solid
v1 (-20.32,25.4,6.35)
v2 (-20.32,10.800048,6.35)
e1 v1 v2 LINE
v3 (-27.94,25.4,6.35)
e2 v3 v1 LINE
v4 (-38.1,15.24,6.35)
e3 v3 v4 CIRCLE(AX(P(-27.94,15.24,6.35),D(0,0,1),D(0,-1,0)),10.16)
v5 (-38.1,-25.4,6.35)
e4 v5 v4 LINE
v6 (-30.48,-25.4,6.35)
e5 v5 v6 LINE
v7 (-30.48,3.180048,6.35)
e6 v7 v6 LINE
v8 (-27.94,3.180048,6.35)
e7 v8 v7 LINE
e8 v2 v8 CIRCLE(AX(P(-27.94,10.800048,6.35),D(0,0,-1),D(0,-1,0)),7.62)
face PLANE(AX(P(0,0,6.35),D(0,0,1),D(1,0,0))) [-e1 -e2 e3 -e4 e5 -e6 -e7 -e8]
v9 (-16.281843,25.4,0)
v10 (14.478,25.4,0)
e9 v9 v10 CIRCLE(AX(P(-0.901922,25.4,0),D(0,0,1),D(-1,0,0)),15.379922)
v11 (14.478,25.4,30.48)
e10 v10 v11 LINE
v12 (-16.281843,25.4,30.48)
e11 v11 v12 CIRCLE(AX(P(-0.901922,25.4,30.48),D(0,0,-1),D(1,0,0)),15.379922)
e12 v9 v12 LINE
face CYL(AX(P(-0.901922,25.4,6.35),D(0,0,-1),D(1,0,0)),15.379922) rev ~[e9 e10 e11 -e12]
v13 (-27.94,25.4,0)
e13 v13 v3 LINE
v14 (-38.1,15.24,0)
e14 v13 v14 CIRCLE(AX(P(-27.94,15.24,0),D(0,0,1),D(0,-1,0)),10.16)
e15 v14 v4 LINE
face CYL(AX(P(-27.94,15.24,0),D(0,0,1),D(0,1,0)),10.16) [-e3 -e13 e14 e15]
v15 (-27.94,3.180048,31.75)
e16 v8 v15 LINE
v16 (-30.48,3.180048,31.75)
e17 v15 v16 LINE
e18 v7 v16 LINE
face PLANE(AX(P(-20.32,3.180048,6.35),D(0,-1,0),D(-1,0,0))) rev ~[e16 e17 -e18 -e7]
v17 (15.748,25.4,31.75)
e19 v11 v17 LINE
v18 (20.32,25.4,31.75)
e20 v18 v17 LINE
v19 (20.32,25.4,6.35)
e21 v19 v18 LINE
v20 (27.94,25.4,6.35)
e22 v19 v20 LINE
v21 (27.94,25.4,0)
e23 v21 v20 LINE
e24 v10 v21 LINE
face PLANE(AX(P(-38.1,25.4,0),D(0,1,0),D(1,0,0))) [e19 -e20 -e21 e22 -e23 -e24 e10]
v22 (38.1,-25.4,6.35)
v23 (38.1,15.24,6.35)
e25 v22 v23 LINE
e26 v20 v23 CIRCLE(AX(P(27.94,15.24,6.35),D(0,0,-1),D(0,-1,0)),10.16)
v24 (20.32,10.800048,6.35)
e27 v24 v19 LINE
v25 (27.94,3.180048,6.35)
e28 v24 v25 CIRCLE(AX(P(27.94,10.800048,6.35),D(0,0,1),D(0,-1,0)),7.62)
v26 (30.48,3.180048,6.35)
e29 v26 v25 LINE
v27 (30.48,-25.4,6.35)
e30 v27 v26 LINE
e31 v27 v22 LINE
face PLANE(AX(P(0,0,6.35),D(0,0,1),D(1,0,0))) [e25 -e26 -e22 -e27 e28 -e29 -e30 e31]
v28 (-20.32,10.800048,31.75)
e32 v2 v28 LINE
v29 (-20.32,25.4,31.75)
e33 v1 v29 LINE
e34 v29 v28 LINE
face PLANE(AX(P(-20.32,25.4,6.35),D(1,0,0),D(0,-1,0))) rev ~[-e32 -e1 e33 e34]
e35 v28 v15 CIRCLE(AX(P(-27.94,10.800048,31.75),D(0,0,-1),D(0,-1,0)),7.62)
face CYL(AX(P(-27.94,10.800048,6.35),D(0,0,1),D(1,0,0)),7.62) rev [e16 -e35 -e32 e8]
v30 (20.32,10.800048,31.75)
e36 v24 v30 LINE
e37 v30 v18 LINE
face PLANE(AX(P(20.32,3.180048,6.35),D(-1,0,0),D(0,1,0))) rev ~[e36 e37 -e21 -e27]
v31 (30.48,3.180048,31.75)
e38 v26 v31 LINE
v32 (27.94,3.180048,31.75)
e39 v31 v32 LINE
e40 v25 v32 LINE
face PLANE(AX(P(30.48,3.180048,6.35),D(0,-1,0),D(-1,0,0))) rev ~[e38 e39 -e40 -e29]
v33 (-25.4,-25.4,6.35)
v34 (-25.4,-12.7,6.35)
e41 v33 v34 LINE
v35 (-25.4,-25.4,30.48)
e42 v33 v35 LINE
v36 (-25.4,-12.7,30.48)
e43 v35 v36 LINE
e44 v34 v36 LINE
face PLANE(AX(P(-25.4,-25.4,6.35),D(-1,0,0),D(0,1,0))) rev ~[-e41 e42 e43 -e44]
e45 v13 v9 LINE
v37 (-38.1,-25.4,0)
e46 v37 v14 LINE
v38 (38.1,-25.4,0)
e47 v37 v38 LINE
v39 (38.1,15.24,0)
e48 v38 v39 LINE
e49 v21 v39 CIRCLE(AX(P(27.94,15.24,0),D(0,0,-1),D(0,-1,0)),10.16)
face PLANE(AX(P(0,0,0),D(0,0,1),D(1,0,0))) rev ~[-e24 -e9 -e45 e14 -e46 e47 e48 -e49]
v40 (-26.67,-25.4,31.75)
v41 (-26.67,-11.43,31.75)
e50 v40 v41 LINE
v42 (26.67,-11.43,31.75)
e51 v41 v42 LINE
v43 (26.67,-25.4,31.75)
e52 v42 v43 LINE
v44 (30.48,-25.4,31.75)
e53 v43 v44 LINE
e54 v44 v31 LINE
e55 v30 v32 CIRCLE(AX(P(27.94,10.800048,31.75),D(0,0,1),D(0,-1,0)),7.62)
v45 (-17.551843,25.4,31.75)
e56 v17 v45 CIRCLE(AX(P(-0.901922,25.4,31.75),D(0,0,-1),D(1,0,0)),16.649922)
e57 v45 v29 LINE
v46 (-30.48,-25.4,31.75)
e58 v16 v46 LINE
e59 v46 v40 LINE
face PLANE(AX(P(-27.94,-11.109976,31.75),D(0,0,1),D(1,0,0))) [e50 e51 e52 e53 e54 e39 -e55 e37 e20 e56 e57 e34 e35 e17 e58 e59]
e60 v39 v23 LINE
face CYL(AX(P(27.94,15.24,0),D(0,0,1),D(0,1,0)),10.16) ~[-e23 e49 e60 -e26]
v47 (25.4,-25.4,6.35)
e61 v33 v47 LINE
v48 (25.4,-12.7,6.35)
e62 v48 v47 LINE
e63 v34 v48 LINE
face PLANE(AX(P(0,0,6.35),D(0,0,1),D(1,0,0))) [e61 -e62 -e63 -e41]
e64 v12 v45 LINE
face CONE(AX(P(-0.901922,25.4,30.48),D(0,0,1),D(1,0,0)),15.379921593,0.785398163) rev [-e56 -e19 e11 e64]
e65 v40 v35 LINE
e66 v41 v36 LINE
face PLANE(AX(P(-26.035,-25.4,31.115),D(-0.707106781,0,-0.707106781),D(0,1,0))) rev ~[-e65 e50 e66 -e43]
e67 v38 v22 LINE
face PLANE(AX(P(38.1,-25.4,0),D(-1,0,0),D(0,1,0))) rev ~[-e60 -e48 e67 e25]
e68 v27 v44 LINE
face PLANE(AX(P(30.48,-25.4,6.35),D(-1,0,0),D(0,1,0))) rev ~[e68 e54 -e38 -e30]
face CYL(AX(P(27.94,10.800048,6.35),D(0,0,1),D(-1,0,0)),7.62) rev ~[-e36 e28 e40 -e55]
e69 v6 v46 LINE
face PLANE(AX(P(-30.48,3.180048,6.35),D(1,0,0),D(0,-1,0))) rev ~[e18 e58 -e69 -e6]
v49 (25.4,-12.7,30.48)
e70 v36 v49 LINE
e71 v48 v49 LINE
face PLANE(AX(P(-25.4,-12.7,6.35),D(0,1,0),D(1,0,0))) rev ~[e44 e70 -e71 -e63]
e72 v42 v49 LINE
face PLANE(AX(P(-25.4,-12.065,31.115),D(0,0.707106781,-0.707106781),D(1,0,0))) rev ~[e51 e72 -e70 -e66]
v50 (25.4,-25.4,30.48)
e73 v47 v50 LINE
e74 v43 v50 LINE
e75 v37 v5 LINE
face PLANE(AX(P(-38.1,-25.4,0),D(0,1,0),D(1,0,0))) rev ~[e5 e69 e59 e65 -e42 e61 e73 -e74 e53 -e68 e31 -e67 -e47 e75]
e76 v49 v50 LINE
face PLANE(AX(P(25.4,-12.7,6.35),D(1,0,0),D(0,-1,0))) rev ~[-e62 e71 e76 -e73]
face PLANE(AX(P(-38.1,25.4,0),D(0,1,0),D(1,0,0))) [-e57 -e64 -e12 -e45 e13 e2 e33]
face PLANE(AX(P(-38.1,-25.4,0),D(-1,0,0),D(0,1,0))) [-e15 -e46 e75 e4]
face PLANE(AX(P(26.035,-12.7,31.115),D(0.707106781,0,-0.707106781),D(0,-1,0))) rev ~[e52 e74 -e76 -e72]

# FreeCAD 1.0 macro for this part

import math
import FreeCAD as App
import Part
import Sketcher
Q = App.Units.Quantity


def edges_at(feature, points):
    """Names of the edges that pass closest to the given points."""
    edges = feature.Shape.Edges
    near = lambda p: min(range(len(edges)), key=lambda i: edges[i].distToShape(Part.Vertex(*p))[0])
    return sorted({f"Edge{near(p) + 1}" for p in points})

doc = App.newDocument("Part")
body = doc.addObject("PartDesign::Body", "Body")

sketch1 = doc.addObject("Sketcher::SketchObject", "Sketch")
body.addObject(sketch1)
sketch1.AttachmentSupport = (doc.XY_Plane, [""])
sketch1.MapMode = "FlatFace"
sketch1.addGeometry([
    Part.LineSegment(App.Vector(-38, 25, 0), App.Vector(-38, -25, 0)),
    Part.LineSegment(App.Vector(-38, -25, 0), App.Vector(38, -25, 0)),
    Part.LineSegment(App.Vector(38, -25, 0), App.Vector(38, 25, 0)),
    Part.LineSegment(App.Vector(38, 25, 0), App.Vector(-38, 25, 0)),
], False)
sketch1.addConstraint([
    Sketcher.Constraint("Coincident", 0, 2, 1, 1),
    Sketcher.Constraint("Coincident", 1, 2, 2, 1),
    Sketcher.Constraint("Coincident", 2, 2, 3, 1),
    Sketcher.Constraint("Coincident", 3, 2, 0, 1),
    Sketcher.Constraint("Vertical", 0),
    Sketcher.Constraint("Horizontal", 1),
    Sketcher.Constraint("Vertical", 2),
    Sketcher.Constraint("Horizontal", 3),
    Sketcher.Constraint("Symmetric", 0, 2, 2, 2, -1, 1),
    Sketcher.Constraint("DistanceX", 1, 1, 1, 2, Q("3 in")),
    Sketcher.Constraint("DistanceY", 0, 2, 0, 1, Q("2 in")),
])
pad1 = doc.addObject("PartDesign::Pad", "Pad")
body.addObject(pad1)
pad1.Profile = sketch1
pad1.Length = Q("0.25 in")

sketch2 = doc.addObject("Sketcher::SketchObject", "Sketch001")
body.addObject(sketch2)
sketch2.AttachmentSupport = (doc.XY_Plane, [""])
sketch2.MapMode = "FlatFace"
sketch2.AttachmentOffset = App.Placement(App.Vector(0, 0, 0.25 * 25.4), App.Rotation())
sketch2.addGeometry([
    Part.LineSegment(App.Vector(-25.4, -25.4, 0), App.Vector(-25.4, -12.7, 0)),
    Part.LineSegment(App.Vector(-25.4, -12.7, 0), App.Vector(25.4, -12.7, 0)),
    Part.LineSegment(App.Vector(25.4, -12.7, 0), App.Vector(25.4, -25.4, 0)),
    Part.LineSegment(App.Vector(25.4, -25.4, 0), App.Vector(30.5, -25.4, 0)),
    Part.LineSegment(App.Vector(30.5, -25.4, 0), App.Vector(30.5, 3.2, 0)),
    Part.LineSegment(App.Vector(30.5, 3.2, 0), App.Vector(20.3, 3.2, 0)),
    Part.LineSegment(App.Vector(20.3, 3.2, 0), App.Vector(20.3, 25.4, 0)),
    Part.LineSegment(App.Vector(20.3, 25.4, 0), App.Vector(14.5, 25.4, 0)),
    Part.ArcOfCircle(Part.Circle(App.Vector(-0.9, 25.4, 0), App.Vector(0, 0, 1), 15.4), math.radians(180), math.radians(360)),
    Part.LineSegment(App.Vector(-16.3, 25.4, 0), App.Vector(-20.3, 25.4, 0)),
    Part.LineSegment(App.Vector(-20.3, 25.4, 0), App.Vector(-20.3, 3.2, 0)),
    Part.LineSegment(App.Vector(-20.3, 3.2, 0), App.Vector(-30.5, 3.2, 0)),
    Part.LineSegment(App.Vector(-30.5, 3.2, 0), App.Vector(-30.5, -25.4, 0)),
    Part.LineSegment(App.Vector(-30.5, -25.4, 0), App.Vector(-25.4, -25.4, 0)),
], False)
sketch2.addConstraint([
    Sketcher.Constraint("Coincident", 0, 2, 1, 1),
    Sketcher.Constraint("Coincident", 1, 2, 2, 1),
    Sketcher.Constraint("Coincident", 2, 2, 3, 1),
    Sketcher.Constraint("Coincident", 3, 2, 4, 1),
    Sketcher.Constraint("Coincident", 4, 2, 5, 1),
    Sketcher.Constraint("Coincident", 5, 2, 6, 1),
    Sketcher.Constraint("Coincident", 6, 2, 7, 1),
    Sketcher.Constraint("Coincident", 7, 2, 8, 2),
    Sketcher.Constraint("Coincident", 8, 1, 9, 1),
    Sketcher.Constraint("Coincident", 9, 2, 10, 1),
    Sketcher.Constraint("Coincident", 10, 2, 11, 1),
    Sketcher.Constraint("Coincident", 11, 2, 12, 1),
    Sketcher.Constraint("Coincident", 12, 2, 13, 1),
    Sketcher.Constraint("Coincident", 13, 2, 0, 1),
    Sketcher.Constraint("Vertical", 0),
    Sketcher.Constraint("Horizontal", 1),
    Sketcher.Constraint("Vertical", 2),
    Sketcher.Constraint("Horizontal", 3),
    Sketcher.Constraint("Vertical", 4),
    Sketcher.Constraint("Horizontal", 5),
    Sketcher.Constraint("Vertical", 6),
    Sketcher.Constraint("Horizontal", 7),
    Sketcher.Constraint("Horizontal", 9),
    Sketcher.Constraint("Vertical", 10),
    Sketcher.Constraint("Horizontal", 11),
    Sketcher.Constraint("Vertical", 12),
    Sketcher.Constraint("Horizontal", 13),
    Sketcher.Constraint("Symmetric", 6, 2, 9, 2, -2),
    Sketcher.Constraint("Symmetric", 4, 2, 11, 2, -2),
    Sketcher.Constraint("Symmetric", 2, 2, 13, 2, -2),
    Sketcher.Constraint("Horizontal", 8, 3, 6, 2),
    Sketcher.Constraint("DistanceX", 1, 1, 1, 2, Q("2 in")),
    Sketcher.Constraint("DistanceX", 3, 1, 3, 2, Q("0.2 in")),
    Sketcher.Constraint("DistanceX", 5, 2, 5, 1, Q("0.4 in")),
    Sketcher.Constraint("DistanceY", 0, 1, 0, 2, Q("0.5 in")),
    Sketcher.Constraint("DistanceY", -1, 1, 8, 3, Q("1 in")),
    Sketcher.Constraint("DistanceY", 2, 2, -1, 1, Q("1 in")),
    Sketcher.Constraint("DistanceX", 7, 2, 7, 1, Q("0.23 in")),
    Sketcher.Constraint("Radius", 8, 15.379922),
    Sketcher.Constraint("DistanceY", 4, 1, 4, 2, 28.580048),
])
pad2 = doc.addObject("PartDesign::Pad", "Pad001")
body.addObject(pad2)
pad2.Profile = sketch2
pad2.Length = Q("1 in")

sketch3 = doc.addObject("Sketcher::SketchObject", "Sketch002")
body.addObject(sketch3)
sketch3.AttachmentSupport = (doc.XY_Plane, [""])
sketch3.MapMode = "FlatFace"
sketch3.AttachmentOffset = App.Placement(App.Vector(0, 0, 1.25 * 25.4), App.Rotation())
sketch3.addGeometry([
    Part.LineSegment(App.Vector(14, 25, 0), App.Vector(-16, 25, 0)),
    Part.ArcOfCircle(Part.Circle(App.Vector(-1, 25, 0), App.Vector(0, 0, 1), 15), math.radians(180), math.radians(360)),
], False)
sketch3.addConstraint([
    Sketcher.Constraint("Coincident", 0, 1, 1, 2),
    Sketcher.Constraint("Coincident", 1, 1, 0, 2),
    Sketcher.Constraint("Horizontal", 0),
    Sketcher.Constraint("Horizontal", 1, 3, 0, 1),
    Sketcher.Constraint("DistanceY", -1, 1, 1, 3, Q("1 in")),
    Sketcher.Constraint("DistanceX", -1, 1, 0, 1, Q("0.57 in")),
    Sketcher.Constraint("Radius", 1, 15.379922),
])
pocket1 = doc.addObject("PartDesign::Pocket", "Pocket")
body.addObject(pocket1)
pocket1.Profile = sketch3
pocket1.Length = Q("1.25 in")
doc.recompute()

chamfer = doc.addObject("PartDesign::Chamfer", "Chamfer")
body.addObject(chamfer)
chamfer.Base = (pocket1, edges_at(pocket1, [(0, -12.7, 31.75), (-25.4, -19.05, 31.75), (25.4, -19.05, 31.75)]))
chamfer.Size = Q("0.05 in")
doc.recompute()

fillet = doc.addObject("PartDesign::Fillet", "Fillet")
body.addObject(fillet)
fillet.Base = (chamfer, edges_at(chamfer, [(-38.1, 25.4, 3.175), (38.1, 25.4, 3.175)]))
fillet.Radius = Q("0.4 in")
doc.recompute()

chamfer2 = doc.addObject("PartDesign::Chamfer", "Chamfer001")
body.addObject(chamfer2)
chamfer2.Base = (fillet, edges_at(fillet, [(-0.902, 10.02, 31.75)]))
chamfer2.Size = Q("0.05 in")
doc.recompute()

fillet2 = doc.addObject("PartDesign::Fillet", "Fillet001")
body.addObject(fillet2)
fillet2.Base = (chamfer2, edges_at(chamfer2, [(-20.32, 3.18, 19.05)]))
fillet2.Radius = Q("0.3 in")
doc.recompute()

fillet3 = doc.addObject("PartDesign::Fillet", "Fillet002")
body.addObject(fillet3)
fillet3.Base = (fillet2, edges_at(fillet2, [(20.32, 3.18, 19.05)]))
fillet3.Radius = Q("0.3 in")

doc.recompute()
